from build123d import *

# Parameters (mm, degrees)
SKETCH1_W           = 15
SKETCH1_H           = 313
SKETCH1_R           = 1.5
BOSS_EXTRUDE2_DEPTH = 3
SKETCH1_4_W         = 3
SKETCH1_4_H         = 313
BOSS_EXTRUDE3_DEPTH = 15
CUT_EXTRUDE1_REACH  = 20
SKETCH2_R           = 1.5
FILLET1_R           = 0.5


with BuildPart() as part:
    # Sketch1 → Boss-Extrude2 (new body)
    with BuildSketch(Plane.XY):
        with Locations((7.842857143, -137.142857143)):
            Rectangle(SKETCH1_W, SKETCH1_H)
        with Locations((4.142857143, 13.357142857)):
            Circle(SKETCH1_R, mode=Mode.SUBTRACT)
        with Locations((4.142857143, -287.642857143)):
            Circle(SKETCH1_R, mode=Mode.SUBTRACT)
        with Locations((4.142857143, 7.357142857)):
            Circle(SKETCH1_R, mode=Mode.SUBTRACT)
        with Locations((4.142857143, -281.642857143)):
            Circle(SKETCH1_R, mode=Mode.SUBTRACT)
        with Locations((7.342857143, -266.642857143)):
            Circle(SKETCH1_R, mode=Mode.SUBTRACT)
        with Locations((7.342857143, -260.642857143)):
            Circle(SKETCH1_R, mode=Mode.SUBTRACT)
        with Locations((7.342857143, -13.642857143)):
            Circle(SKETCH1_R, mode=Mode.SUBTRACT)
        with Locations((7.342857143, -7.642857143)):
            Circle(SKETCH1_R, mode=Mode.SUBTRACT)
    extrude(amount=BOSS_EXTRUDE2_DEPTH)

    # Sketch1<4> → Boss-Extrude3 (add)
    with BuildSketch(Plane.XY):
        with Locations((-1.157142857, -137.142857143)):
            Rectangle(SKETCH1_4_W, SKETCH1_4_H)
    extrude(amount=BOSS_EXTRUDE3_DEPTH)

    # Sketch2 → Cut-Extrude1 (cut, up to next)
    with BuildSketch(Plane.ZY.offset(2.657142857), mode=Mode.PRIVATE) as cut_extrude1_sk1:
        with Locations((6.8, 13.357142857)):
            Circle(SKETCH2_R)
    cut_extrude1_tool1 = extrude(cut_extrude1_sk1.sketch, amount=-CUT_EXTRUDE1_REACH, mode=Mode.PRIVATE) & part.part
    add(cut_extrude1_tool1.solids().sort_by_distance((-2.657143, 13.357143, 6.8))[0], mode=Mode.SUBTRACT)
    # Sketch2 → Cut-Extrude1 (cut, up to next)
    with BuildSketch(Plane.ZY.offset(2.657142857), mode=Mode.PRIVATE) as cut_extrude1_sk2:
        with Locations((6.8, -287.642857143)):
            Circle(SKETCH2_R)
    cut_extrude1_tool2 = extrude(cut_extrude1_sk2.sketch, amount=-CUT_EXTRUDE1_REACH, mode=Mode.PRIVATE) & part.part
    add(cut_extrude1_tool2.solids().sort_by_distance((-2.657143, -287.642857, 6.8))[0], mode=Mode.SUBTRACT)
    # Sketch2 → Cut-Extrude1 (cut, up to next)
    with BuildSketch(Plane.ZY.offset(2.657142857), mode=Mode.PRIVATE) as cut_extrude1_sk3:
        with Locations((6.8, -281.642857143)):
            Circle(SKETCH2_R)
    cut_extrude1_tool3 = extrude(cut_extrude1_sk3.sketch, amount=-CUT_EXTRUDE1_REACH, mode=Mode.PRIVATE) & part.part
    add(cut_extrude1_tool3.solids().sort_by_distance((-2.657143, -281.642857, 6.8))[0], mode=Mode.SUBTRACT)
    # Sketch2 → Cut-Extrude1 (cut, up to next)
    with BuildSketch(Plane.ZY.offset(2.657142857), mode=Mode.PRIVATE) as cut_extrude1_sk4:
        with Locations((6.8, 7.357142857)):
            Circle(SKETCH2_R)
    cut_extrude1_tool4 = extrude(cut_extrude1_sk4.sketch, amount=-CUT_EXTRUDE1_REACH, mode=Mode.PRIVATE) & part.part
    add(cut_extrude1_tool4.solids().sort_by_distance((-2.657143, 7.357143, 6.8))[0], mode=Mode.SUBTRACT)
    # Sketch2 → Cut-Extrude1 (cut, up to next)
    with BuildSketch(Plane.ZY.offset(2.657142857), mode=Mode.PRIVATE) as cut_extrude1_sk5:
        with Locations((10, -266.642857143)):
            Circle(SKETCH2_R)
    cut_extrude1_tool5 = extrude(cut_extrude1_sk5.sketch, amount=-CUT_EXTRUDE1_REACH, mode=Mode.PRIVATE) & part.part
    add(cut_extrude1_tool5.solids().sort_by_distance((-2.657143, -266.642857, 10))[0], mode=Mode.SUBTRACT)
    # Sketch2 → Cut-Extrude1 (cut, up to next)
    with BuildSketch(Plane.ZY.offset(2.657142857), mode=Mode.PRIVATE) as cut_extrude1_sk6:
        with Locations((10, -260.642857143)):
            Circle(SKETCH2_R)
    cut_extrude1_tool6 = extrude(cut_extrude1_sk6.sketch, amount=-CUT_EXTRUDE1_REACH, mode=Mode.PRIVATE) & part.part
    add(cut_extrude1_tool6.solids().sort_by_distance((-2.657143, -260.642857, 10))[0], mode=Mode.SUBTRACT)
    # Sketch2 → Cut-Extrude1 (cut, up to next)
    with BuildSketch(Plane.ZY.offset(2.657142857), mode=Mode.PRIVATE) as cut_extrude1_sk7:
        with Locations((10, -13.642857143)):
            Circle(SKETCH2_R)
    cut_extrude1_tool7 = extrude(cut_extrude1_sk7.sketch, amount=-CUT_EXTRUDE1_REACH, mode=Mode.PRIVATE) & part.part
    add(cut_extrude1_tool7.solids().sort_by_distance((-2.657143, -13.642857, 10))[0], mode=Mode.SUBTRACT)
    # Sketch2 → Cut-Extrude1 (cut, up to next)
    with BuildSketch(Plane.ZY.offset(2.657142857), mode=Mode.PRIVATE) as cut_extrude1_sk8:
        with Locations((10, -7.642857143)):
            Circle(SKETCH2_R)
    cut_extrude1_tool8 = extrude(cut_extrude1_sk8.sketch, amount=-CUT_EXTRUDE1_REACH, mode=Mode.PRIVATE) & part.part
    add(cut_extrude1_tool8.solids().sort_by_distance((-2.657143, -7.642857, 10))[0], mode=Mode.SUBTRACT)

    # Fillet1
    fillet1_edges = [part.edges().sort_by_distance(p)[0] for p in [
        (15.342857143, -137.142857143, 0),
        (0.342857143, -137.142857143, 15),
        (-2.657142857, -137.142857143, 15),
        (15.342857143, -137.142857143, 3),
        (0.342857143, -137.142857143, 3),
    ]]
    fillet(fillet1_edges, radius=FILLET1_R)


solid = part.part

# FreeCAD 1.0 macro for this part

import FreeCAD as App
import Part
import Sketcher
Q = App.Units.Quantity


def edges_at(feature, points):
    """Names of the edges that pass closest to the given points."""
    edges = feature.Shape.Edges
    near = lambda p: min(range(len(edges)), key=lambda i: edges[i].distToShape(Part.Vertex(*p))[0])
    return sorted({f"Edge{near(p) + 1}" for p in points})

doc = App.newDocument("Part")
body = doc.addObject("PartDesign::Body", "Body")

sketch1 = doc.addObject("Sketcher::SketchObject", "Sketch")
body.addObject(sketch1)
sketch1.AttachmentSupport = (doc.XY_Plane, [""])
sketch1.MapMode = "FlatFace"
sketch1.addGeometry(Part.LineSegment(App.Vector(0.3, 19.4, 0), App.Vector(0.3, -293.6, 0)), False)
sketch1.addGeometry(Part.LineSegment(App.Vector(0.3, -293.6, 0), App.Vector(15.3, -293.6, 0)), False)
sketch1.addGeometry(Part.LineSegment(App.Vector(15.3, -293.6, 0), App.Vector(15.3, 19.4, 0)), False)
sketch1.addGeometry(Part.LineSegment(App.Vector(15.3, 19.4, 0), App.Vector(0.3, 19.4, 0)), False)
sketch1.addGeometry(Part.Circle(App.Vector(4.1, -287.6, 0), App.Vector(0, 0, 1), 1.5), False)
sketch1.addGeometry(Part.Circle(App.Vector(4.1, -281.6, 0), App.Vector(0, 0, 1), 1.5), False)
sketch1.addGeometry(Part.Circle(App.Vector(7.3, -266.6, 0), App.Vector(0, 0, 1), 1.5), False)
sketch1.addGeometry(Part.Circle(App.Vector(7.3, -260.6, 0), App.Vector(0, 0, 1), 1.5), False)
sketch1.addGeometry(Part.Circle(App.Vector(4.1, 7.4, 0), App.Vector(0, 0, 1), 1.5), False)
sketch1.addGeometry(Part.Circle(App.Vector(4.1, 13.4, 0), App.Vector(0, 0, 1), 1.5), False)
sketch1.addGeometry(Part.Circle(App.Vector(7.3, -13.6, 0), App.Vector(0, 0, 1), 1.5), False)
sketch1.addGeometry(Part.Circle(App.Vector(7.3, -7.6, 0), App.Vector(0, 0, 1), 1.5), False)
sketch1.addConstraint(Sketcher.Constraint("Coincident", 0, 2, 1, 1))
sketch1.addConstraint(Sketcher.Constraint("Coincident", 1, 2, 2, 1))
sketch1.addConstraint(Sketcher.Constraint("Coincident", 2, 2, 3, 1))
sketch1.addConstraint(Sketcher.Constraint("Coincident", 3, 2, 0, 1))
sketch1.addConstraint(Sketcher.Constraint("Vertical", 0))
sketch1.addConstraint(Sketcher.Constraint("Horizontal", 1))
sketch1.addConstraint(Sketcher.Constraint("Vertical", 2))
sketch1.addConstraint(Sketcher.Constraint("Horizontal", 3))
sketch1.addConstraint(Sketcher.Constraint("Equal", 4, 5))
sketch1.addConstraint(Sketcher.Constraint("Equal", 5, 6))
sketch1.addConstraint(Sketcher.Constraint("Equal", 6, 7))
sketch1.addConstraint(Sketcher.Constraint("Equal", 7, 8))
sketch1.addConstraint(Sketcher.Constraint("Equal", 8, 9))
sketch1.addConstraint(Sketcher.Constraint("Equal", 9, 10))
sketch1.addConstraint(Sketcher.Constraint("Equal", 10, 11))
sketch1.addConstraint(Sketcher.Constraint("Vertical", 4, 3, 5, 3))
sketch1.addConstraint(Sketcher.Constraint("Vertical", 6, 3, 7, 3))
sketch1.addConstraint(Sketcher.Constraint("Vertical", 5, 3, 8, 3))
sketch1.addConstraint(Sketcher.Constraint("Vertical", 8, 3, 9, 3))
sketch1.addConstraint(Sketcher.Constraint("Vertical", 7, 3, 10, 3))
sketch1.addConstraint(Sketcher.Constraint("Vertical", 10, 3, 11, 3))
sketch1.addConstraint(Sketcher.Constraint("Diameter", 4, Q("3 mm")))
sketch1.addConstraint(Sketcher.Constraint("DistanceX", 1, 1, 1, 2, Q("15 mm")))
sketch1.addConstraint(Sketcher.Constraint("DistanceY", 0, 2, 0, 1, Q("313 mm")))
sketch1.addConstraint(Sketcher.Constraint("DistanceY", 4, 3, 5, 3, Q("6 mm")))
sketch1.addConstraint(Sketcher.Constraint("DistanceY", 5, 3, 6, 3, Q("15 mm")))
sketch1.addConstraint(Sketcher.Constraint("DistanceY", 6, 3, 7, 3, Q("6 mm")))
sketch1.addConstraint(Sketcher.Constraint("DistanceY", 7, 3, 8, 3, Q("268 mm")))
sketch1.addConstraint(Sketcher.Constraint("DistanceY", 8, 3, 9, 3, Q("6 mm")))
sketch1.addConstraint(Sketcher.Constraint("DistanceY", 10, 3, 8, 3, Q("21 mm")))
sketch1.addConstraint(Sketcher.Constraint("DistanceY", 10, 3, 11, 3, Q("6 mm")))
sketch1.addConstraint(Sketcher.Constraint("DistanceY", 0, 2, 4, 3, Q("6 mm")))
sketch1.addConstraint(Sketcher.Constraint("DistanceX", 0, 2, 6, 3, Q("7 mm")))
sketch1.addConstraint(Sketcher.Constraint("DistanceX", 5, 3, 6, 3, Q("3.2 mm")))
sketch1.addConstraint(Sketcher.Constraint("DistanceX", -1, 1, 4, 3, Q("4.142857 mm")))
sketch1.addConstraint(Sketcher.Constraint("DistanceY", 4, 3, -1, 1, Q("287.642857 mm")))
pad1 = doc.addObject("PartDesign::Pad", "Pad")
body.addObject(pad1)
pad1.Profile = sketch1
pad1.Length = 3

sketch2 = doc.addObject("Sketcher::SketchObject", "Sketch001")
body.addObject(sketch2)
sketch2.AttachmentSupport = (doc.XY_Plane, [""])
sketch2.MapMode = "FlatFace"
sketch2.addGeometry(Part.LineSegment(App.Vector(-2.7, 19.4, 0), App.Vector(-2.7, -293.6, 0)), False)
sketch2.addGeometry(Part.LineSegment(App.Vector(-2.7, -293.6, 0), App.Vector(0.3, -293.6, 0)), False)
sketch2.addGeometry(Part.LineSegment(App.Vector(0.3, -293.6, 0), App.Vector(0.3, 19.4, 0)), False)
sketch2.addGeometry(Part.LineSegment(App.Vector(0.3, 19.4, 0), App.Vector(-2.7, 19.4, 0)), False)
sketch2.addConstraint(Sketcher.Constraint("Coincident", 0, 2, 1, 1))
sketch2.addConstraint(Sketcher.Constraint("Coincident", 1, 2, 2, 1))
sketch2.addConstraint(Sketcher.Constraint("Coincident", 2, 2, 3, 1))
sketch2.addConstraint(Sketcher.Constraint("Coincident", 3, 2, 0, 1))
sketch2.addConstraint(Sketcher.Constraint("Vertical", 0))
sketch2.addConstraint(Sketcher.Constraint("Horizontal", 1))
sketch2.addConstraint(Sketcher.Constraint("Vertical", 2))
sketch2.addConstraint(Sketcher.Constraint("Horizontal", 3))
sketch2.addConstraint(Sketcher.Constraint("DistanceX", 1, 1, 1, 2, Q("3 mm")))
sketch2.addConstraint(Sketcher.Constraint("DistanceY", 0, 2, 0, 1, Q("313 mm")))
sketch2.addConstraint(Sketcher.Constraint("DistanceX", 0, 2, -1, 1, Q("2.657143 mm")))
sketch2.addConstraint(Sketcher.Constraint("DistanceY", 0, 2, -1, 1, Q("293.642857 mm")))
pad2 = doc.addObject("PartDesign::Pad", "Pad001")
body.addObject(pad2)
pad2.Profile = sketch2
pad2.Length = 15

sketch3 = doc.addObject("Sketcher::SketchObject", "Sketch002")
body.addObject(sketch3)
sketch3.AttachmentSupport = (doc.YZ_Plane, [""])
sketch3.MapMode = "FlatFace"
sketch3.AttachmentOffset = App.Placement(App.Vector(0, 0, -2.657143), App.Rotation())
sketch3.addGeometry(Part.Circle(App.Vector(13.4, 6.8, 0), App.Vector(0, 0, 1), 1.5), False)
sketch3.addConstraint(Sketcher.Constraint("Diameter", 0, Q("3 mm")))
sketch3.addConstraint(Sketcher.Constraint("DistanceY", -1, 1, 0, 3, Q("6.8 mm")))
sketch3.addConstraint(Sketcher.Constraint("DistanceX", -1, 1, 0, 3, Q("13.357143 mm")))
pocket1 = doc.addObject("PartDesign::Pocket", "Pocket")
body.addObject(pocket1)
pocket1.Profile = sketch3
pocket1.Type = "UpToFirst"
pocket1.Reversed = True

sketch4 = doc.addObject("Sketcher::SketchObject", "Sketch003")
body.addObject(sketch4)
sketch4.AttachmentSupport = (doc.YZ_Plane, [""])
sketch4.MapMode = "FlatFace"
sketch4.AttachmentOffset = App.Placement(App.Vector(0, 0, -2.657143), App.Rotation())
sketch4.addGeometry(Part.Circle(App.Vector(-287.6, 6.8, 0), App.Vector(0, 0, 1), 1.5), False)
sketch4.addConstraint(Sketcher.Constraint("Diameter", 0, Q("3 mm")))
sketch4.addConstraint(Sketcher.Constraint("DistanceY", -1, 1, 0, 3, Q("6.8 mm")))
sketch4.addConstraint(Sketcher.Constraint("DistanceX", 0, 3, -1, 1, Q("287.642857 mm")))
pocket2 = doc.addObject("PartDesign::Pocket", "Pocket001")
body.addObject(pocket2)
pocket2.Profile = sketch4
pocket2.Type = "UpToFirst"
pocket2.Reversed = True

sketch5 = doc.addObject("Sketcher::SketchObject", "Sketch004")
body.addObject(sketch5)
sketch5.AttachmentSupport = (doc.YZ_Plane, [""])
sketch5.MapMode = "FlatFace"
sketch5.AttachmentOffset = App.Placement(App.Vector(0, 0, -2.657143), App.Rotation())
sketch5.addGeometry(Part.Circle(App.Vector(-281.6, 6.8, 0), App.Vector(0, 0, 1), 1.5), False)
sketch5.addConstraint(Sketcher.Constraint("Diameter", 0, Q("3 mm")))
sketch5.addConstraint(Sketcher.Constraint("DistanceY", -1, 1, 0, 3, Q("6.8 mm")))
sketch5.addConstraint(Sketcher.Constraint("DistanceX", 0, 3, -1, 1, Q("281.642857 mm")))
pocket3 = doc.addObject("PartDesign::Pocket", "Pocket002")
body.addObject(pocket3)
pocket3.Profile = sketch5
pocket3.Type = "UpToFirst"
pocket3.Reversed = True

sketch6 = doc.addObject("Sketcher::SketchObject", "Sketch005")
body.addObject(sketch6)
sketch6.AttachmentSupport = (doc.YZ_Plane, [""])
sketch6.MapMode = "FlatFace"
sketch6.AttachmentOffset = App.Placement(App.Vector(0, 0, -2.657143), App.Rotation())
sketch6.addGeometry(Part.Circle(App.Vector(7.4, 6.8, 0), App.Vector(0, 0, 1), 1.5), False)
sketch6.addConstraint(Sketcher.Constraint("Diameter", 0, Q("3 mm")))
sketch6.addConstraint(Sketcher.Constraint("DistanceY", -1, 1, 0, 3, Q("6.8 mm")))
sketch6.addConstraint(Sketcher.Constraint("DistanceX", -1, 1, 0, 3, Q("7.357143 mm")))
pocket4 = doc.addObject("PartDesign::Pocket", "Pocket003")
body.addObject(pocket4)
pocket4.Profile = sketch6
pocket4.Type = "UpToFirst"
pocket4.Reversed = True

sketch7 = doc.addObject("Sketcher::SketchObject", "Sketch006")
body.addObject(sketch7)
sketch7.AttachmentSupport = (doc.YZ_Plane, [""])
sketch7.MapMode = "FlatFace"
sketch7.AttachmentOffset = App.Placement(App.Vector(0, 0, -2.657143), App.Rotation())
sketch7.addGeometry(Part.Circle(App.Vector(-266.6, 10, 0), App.Vector(0, 0, 1), 1.5), False)
sketch7.addConstraint(Sketcher.Constraint("Diameter", 0, Q("3 mm")))
sketch7.addConstraint(Sketcher.Constraint("DistanceY", -1, 1, 0, 3, Q("10 mm")))
sketch7.addConstraint(Sketcher.Constraint("DistanceX", 0, 3, -1, 1, Q("266.642857 mm")))
pocket5 = doc.addObject("PartDesign::Pocket", "Pocket004")
body.addObject(pocket5)
pocket5.Profile = sketch7
pocket5.Type = "UpToFirst"
pocket5.Reversed = True

sketch8 = doc.addObject("Sketcher::SketchObject", "Sketch007")
body.addObject(sketch8)
sketch8.AttachmentSupport = (doc.YZ_Plane, [""])
sketch8.MapMode = "FlatFace"
sketch8.AttachmentOffset = App.Placement(App.Vector(0, 0, -2.657143), App.Rotation())
sketch8.addGeometry(Part.Circle(App.Vector(-260.6, 10, 0), App.Vector(0, 0, 1), 1.5), False)
sketch8.addConstraint(Sketcher.Constraint("Diameter", 0, Q("3 mm")))
sketch8.addConstraint(Sketcher.Constraint("DistanceY", -1, 1, 0, 3, Q("10 mm")))
sketch8.addConstraint(Sketcher.Constraint("DistanceX", 0, 3, -1, 1, Q("260.642857 mm")))
pocket6 = doc.addObject("PartDesign::Pocket", "Pocket005")
body.addObject(pocket6)
pocket6.Profile = sketch8
pocket6.Type = "UpToFirst"
pocket6.Reversed = True

sketch9 = doc.addObject("Sketcher::SketchObject", "Sketch008")
body.addObject(sketch9)
sketch9.AttachmentSupport = (doc.YZ_Plane, [""])
sketch9.MapMode = "FlatFace"
sketch9.AttachmentOffset = App.Placement(App.Vector(0, 0, -2.657143), App.Rotation())
sketch9.addGeometry(Part.Circle(App.Vector(-13.6, 10, 0), App.Vector(0, 0, 1), 1.5), False)
sketch9.addConstraint(Sketcher.Constraint("Diameter", 0, Q("3 mm")))
sketch9.addConstraint(Sketcher.Constraint("DistanceY", -1, 1, 0, 3, Q("10 mm")))
sketch9.addConstraint(Sketcher.Constraint("DistanceX", 0, 3, -1, 1, Q("13.642857 mm")))
pocket7 = doc.addObject("PartDesign::Pocket", "Pocket006")
body.addObject(pocket7)
pocket7.Profile = sketch9
pocket7.Type = "UpToFirst"
pocket7.Reversed = True

sketch10 = doc.addObject("Sketcher::SketchObject", "Sketch009")
body.addObject(sketch10)
sketch10.AttachmentSupport = (doc.YZ_Plane, [""])
sketch10.MapMode = "FlatFace"
sketch10.AttachmentOffset = App.Placement(App.Vector(0, 0, -2.657143), App.Rotation())
sketch10.addGeometry(Part.Circle(App.Vector(-7.6, 10, 0), App.Vector(0, 0, 1), 1.5), False)
sketch10.addConstraint(Sketcher.Constraint("Diameter", 0, Q("3 mm")))
sketch10.addConstraint(Sketcher.Constraint("DistanceY", -1, 1, 0, 3, Q("10 mm")))
sketch10.addConstraint(Sketcher.Constraint("DistanceX", 0, 3, -1, 1, Q("7.642857 mm")))
pocket8 = doc.addObject("PartDesign::Pocket", "Pocket007")
body.addObject(pocket8)
pocket8.Profile = sketch10
pocket8.Type = "UpToFirst"
pocket8.Reversed = True
doc.recompute()

fillet = doc.addObject("PartDesign::Fillet", "Fillet")
body.addObject(fillet)
fillet.Base = (pocket8, edges_at(pocket8, [
    (15.343, -137.143, 0),
    (0.343, -137.143, 15),
    (-2.657, -137.143, 15),
    (15.343, -137.143, 3),
    (0.343, -137.143, 3),
]))
fillet.Radius = 0.5

doc.recompute()
